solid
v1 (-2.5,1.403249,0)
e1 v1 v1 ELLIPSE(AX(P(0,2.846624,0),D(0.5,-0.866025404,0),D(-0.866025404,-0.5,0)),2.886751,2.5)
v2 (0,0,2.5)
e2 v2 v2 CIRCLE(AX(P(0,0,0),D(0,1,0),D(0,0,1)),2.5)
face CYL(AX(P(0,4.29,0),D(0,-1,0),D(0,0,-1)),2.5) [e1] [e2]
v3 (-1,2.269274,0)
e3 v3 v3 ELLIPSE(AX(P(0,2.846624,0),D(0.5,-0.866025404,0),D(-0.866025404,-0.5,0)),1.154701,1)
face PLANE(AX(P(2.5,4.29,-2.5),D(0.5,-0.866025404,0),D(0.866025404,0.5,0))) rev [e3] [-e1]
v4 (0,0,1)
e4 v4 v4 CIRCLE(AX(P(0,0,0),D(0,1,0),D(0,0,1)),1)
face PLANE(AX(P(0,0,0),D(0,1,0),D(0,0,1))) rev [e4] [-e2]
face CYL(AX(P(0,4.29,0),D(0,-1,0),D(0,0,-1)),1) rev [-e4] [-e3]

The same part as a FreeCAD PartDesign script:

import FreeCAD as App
import Part
import Sketcher

V = App.Vector
Q = App.Units.Quantity

doc = App.newDocument("Part")
body = doc.addObject("PartDesign::Body", "Body")

# Sketch on XZ plane
sketch1 = body.newObject("Sketcher::SketchObject", "Sketch")
sketch1.AttachmentSupport = (doc.getObject("XZ_Plane"), [""])
sketch1.MapMode = "FlatFace"
sketch1.addGeometry(Part.Circle(V(0, 0, 0), V(0, 0, 1), 2.5), False)
sketch1.addGeometry(Part.Circle(V(0, 0, 0), V(0, 0, 1), 1), False)
sketch1.addConstraint(Sketcher.Constraint("Coincident", 0, 3, -1, 1))
sketch1.addConstraint(Sketcher.Constraint("Coincident", 1, 3, -1, 1))
sketch1.addConstraint(Sketcher.Constraint("Diameter", 0, 5.0))
sketch1.addConstraint(Sketcher.Constraint("Diameter", 1, 2.0))
pad1 = body.newObject("PartDesign::Pad", "Pad")
pad1.Profile = sketch1
pad1.Length = 4.29
pad1.Reversed = True

# Sketch on XY plane
sketch2 = body.newObject("Sketcher::SketchObject", "Sketch001")
sketch2.AttachmentSupport = (doc.getObject("XY_Plane"), [""])
sketch2.MapMode = "FlatFace"
sketch2.addGeometry(Part.LineSegment(V(-2.5, 1.403249, 0), V(2.5, 4.29, 0)), False)
sketch2.addGeometry(Part.LineSegment(V(2.5, 4.29, 0), V(-2.5, 4.29, 0)), False)
sketch2.addGeometry(Part.LineSegment(V(-2.5, 4.29, 0), V(-2.5, 1.403249, 0)), False)
sketch2.addConstraint(Sketcher.Constraint("Coincident", 0, 2, 1, 1))
sketch2.addConstraint(Sketcher.Constraint("Coincident", 1, 2, 2, 1))
sketch2.addConstraint(Sketcher.Constraint("Coincident", 2, 2, 0, 1))
sketch2.addConstraint(Sketcher.Constraint("Horizontal", 1))
sketch2.addConstraint(Sketcher.Constraint("Vertical", 2))
sketch2.addConstraint(Sketcher.Constraint("DistanceX", 1, 2, 1, 1, 5.0))
sketch2.addConstraint(Sketcher.Constraint("Angle", 0, Q("30 deg")))
sketch2.addConstraint(Sketcher.Constraint("DistanceX", -1, 1, 0, 2, 2.5))
sketch2.addConstraint(Sketcher.Constraint("DistanceY", -1, 1, 0, 2, 4.29))
pocket1 = body.newObject("PartDesign::Pocket", "Pocket")
pocket1.Profile = sketch2
pocket1.Type = "ThroughAll"
pocket1.Midplane = True

doc.recompute()
